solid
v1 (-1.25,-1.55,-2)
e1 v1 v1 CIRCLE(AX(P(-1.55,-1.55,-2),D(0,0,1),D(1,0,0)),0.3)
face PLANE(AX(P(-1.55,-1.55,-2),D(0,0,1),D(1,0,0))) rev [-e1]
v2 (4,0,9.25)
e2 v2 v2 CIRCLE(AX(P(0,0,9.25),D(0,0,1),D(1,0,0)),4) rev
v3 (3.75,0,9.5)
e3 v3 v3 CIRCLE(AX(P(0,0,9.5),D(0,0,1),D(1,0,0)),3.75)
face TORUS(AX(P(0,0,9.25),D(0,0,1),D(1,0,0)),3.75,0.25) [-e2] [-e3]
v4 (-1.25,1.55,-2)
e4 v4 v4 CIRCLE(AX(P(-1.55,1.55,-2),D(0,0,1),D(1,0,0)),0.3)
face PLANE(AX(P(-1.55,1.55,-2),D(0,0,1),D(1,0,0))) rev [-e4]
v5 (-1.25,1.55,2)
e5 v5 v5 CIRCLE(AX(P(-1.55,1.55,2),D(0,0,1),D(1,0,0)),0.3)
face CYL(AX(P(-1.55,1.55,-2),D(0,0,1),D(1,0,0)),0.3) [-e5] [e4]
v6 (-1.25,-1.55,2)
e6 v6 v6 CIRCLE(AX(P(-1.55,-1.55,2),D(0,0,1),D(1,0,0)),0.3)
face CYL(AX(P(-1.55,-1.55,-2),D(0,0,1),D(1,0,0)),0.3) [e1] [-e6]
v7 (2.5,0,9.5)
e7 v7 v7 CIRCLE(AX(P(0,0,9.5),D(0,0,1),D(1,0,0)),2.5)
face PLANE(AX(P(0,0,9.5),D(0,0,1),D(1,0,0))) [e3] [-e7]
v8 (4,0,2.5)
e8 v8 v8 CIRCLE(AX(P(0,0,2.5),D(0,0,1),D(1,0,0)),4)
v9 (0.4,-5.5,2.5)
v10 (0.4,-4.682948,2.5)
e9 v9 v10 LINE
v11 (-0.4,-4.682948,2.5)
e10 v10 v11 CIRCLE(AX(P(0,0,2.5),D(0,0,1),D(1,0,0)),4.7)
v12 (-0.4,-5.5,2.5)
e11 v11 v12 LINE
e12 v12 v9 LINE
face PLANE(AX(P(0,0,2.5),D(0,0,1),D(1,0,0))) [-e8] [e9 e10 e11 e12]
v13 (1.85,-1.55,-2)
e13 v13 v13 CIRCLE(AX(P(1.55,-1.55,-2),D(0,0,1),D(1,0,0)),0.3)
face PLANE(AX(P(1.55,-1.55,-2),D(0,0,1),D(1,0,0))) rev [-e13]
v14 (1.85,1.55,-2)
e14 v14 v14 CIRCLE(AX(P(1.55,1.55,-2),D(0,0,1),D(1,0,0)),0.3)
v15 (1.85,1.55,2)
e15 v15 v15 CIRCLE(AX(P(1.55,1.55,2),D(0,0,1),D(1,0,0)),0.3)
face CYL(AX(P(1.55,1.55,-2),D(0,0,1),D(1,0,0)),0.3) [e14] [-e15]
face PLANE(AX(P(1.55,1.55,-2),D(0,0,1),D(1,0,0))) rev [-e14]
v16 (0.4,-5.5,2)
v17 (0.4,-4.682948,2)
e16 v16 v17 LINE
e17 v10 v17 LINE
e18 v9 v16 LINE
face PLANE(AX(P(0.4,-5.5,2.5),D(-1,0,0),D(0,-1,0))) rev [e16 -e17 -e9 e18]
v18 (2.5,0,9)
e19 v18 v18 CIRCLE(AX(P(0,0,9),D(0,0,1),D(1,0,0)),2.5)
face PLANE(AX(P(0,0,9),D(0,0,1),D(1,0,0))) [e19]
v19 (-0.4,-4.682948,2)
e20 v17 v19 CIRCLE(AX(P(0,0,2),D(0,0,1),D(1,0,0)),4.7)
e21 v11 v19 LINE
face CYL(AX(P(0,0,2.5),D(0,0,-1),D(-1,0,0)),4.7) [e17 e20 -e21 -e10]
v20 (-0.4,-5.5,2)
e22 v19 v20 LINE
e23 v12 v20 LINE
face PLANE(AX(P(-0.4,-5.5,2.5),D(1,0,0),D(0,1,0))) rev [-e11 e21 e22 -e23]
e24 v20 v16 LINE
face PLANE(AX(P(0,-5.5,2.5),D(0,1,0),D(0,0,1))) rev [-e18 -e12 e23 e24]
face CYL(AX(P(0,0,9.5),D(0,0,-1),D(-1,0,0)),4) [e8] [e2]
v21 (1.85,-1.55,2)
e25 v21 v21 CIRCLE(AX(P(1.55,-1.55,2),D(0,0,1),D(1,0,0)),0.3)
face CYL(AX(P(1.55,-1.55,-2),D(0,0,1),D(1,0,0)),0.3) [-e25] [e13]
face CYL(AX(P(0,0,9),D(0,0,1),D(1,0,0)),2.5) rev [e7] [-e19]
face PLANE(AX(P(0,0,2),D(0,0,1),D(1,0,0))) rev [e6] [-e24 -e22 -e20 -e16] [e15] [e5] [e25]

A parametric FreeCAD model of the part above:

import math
import FreeCAD as App
import Part
import Sketcher


def edges_at(feature, points):
    """Names of the edges that pass closest to the given points."""
    edges = feature.Shape.Edges
    near = lambda p: min(range(len(edges)), key=lambda i: edges[i].distToShape(Part.Vertex(*p))[0])
    return sorted({f"Edge{near(p) + 1}" for p in points})

doc = App.newDocument("Part")
body = doc.addObject("PartDesign::Body", "Body")

sketch1 = body.newObject("Sketcher::SketchObject", "Sketch")
sketch1.AttachmentSupport = (doc.getObject("XY_Plane"), [""])
sketch1.MapMode = "FlatFace"
sketch1.addGeometry(Part.Circle(App.Vector(-1.55, 1.55, 0), App.Vector(0, 0, 1), 0.3), False)
sketch1.addConstraint([
    Sketcher.Constraint("Diameter", 0, 0.6),
    Sketcher.Constraint("DistanceX", 0, 3, -1, 1, 1.55),
    Sketcher.Constraint("DistanceY", -1, 1, 0, 3, 1.55),
])
pad1 = body.newObject("PartDesign::Pad", "Pad")
pad1.Profile = sketch1
pad1.Type = "TwoLengths"
pad1.Length = 2
pad1.Length2 = 2
body2 = doc.addObject("PartDesign::Body", "Body001")

sketch2 = body2.newObject("Sketcher::SketchObject", "Sketch001")
sketch2.AttachmentSupport = (doc.getObject("XY_Plane001"), [""])
sketch2.MapMode = "FlatFace"
sketch2.addGeometry(Part.Circle(App.Vector(-1.55, -1.55, 0), App.Vector(0, 0, 1), 0.3), False)
sketch2.addConstraint([
    Sketcher.Constraint("Diameter", 0, 0.6),
    Sketcher.Constraint("DistanceX", 0, 3, -1, 1, 1.55),
    Sketcher.Constraint("DistanceY", 0, 3, -1, 1, 1.55),
])
pad2 = body2.newObject("PartDesign::Pad", "Pad001")
pad2.Profile = sketch2
pad2.Type = "TwoLengths"
pad2.Length = 2
pad2.Length2 = 2
body3 = doc.addObject("PartDesign::Body", "Body002")

sketch3 = body3.newObject("Sketcher::SketchObject", "Sketch002")
sketch3.AttachmentSupport = (doc.getObject("XY_Plane002"), [""])
sketch3.MapMode = "FlatFace"
sketch3.addGeometry(Part.Circle(App.Vector(1.55, 1.55, 0), App.Vector(0, 0, 1), 0.3), False)
sketch3.addConstraint([
    Sketcher.Constraint("Diameter", 0, 0.6),
    Sketcher.Constraint("DistanceX", -1, 1, 0, 3, 1.55),
    Sketcher.Constraint("DistanceY", -1, 1, 0, 3, 1.55),
])
pad3 = body3.newObject("PartDesign::Pad", "Pad002")
pad3.Profile = sketch3
pad3.Type = "TwoLengths"
pad3.Length = 2
pad3.Length2 = 2
body4 = doc.addObject("PartDesign::Body", "Body003")

sketch4 = body4.newObject("Sketcher::SketchObject", "Sketch003")
sketch4.AttachmentSupport = (doc.getObject("XY_Plane003"), [""])
sketch4.MapMode = "FlatFace"
sketch4.addGeometry(Part.Circle(App.Vector(1.55, -1.55, 0), App.Vector(0, 0, 1), 0.3), False)
sketch4.addConstraint([
    Sketcher.Constraint("Diameter", 0, 0.6),
    Sketcher.Constraint("DistanceX", -1, 1, 0, 3, 1.55),
    Sketcher.Constraint("DistanceY", 0, 3, -1, 1, 1.55),
])
pad4 = body4.newObject("PartDesign::Pad", "Pad003")
pad4.Profile = sketch4
pad4.Type = "TwoLengths"
pad4.Length = 2
pad4.Length2 = 2
body.AllowCompound = True
doc.recompute()

boolean = body.newObject("PartDesign::Boolean", "Boolean")
boolean.Type = "Fuse"
boolean.addObjects([body2])
doc.recompute()

boolean2 = body.newObject("PartDesign::Boolean", "Boolean001")
boolean2.Type = "Fuse"
boolean2.addObjects([body3])
doc.recompute()

boolean3 = body.newObject("PartDesign::Boolean", "Boolean002")
boolean3.Type = "Fuse"
boolean3.addObjects([body4])

sketch5 = body.newObject("Sketcher::SketchObject", "Sketch004")
sketch5.AttachmentSupport = (doc.getObject("XY_Plane"), [""])
sketch5.MapMode = "FlatFace"
sketch5.AttachmentOffset = App.Placement(App.Vector(0, 0, 2), App.Rotation())
sketch5.addGeometry([
    Part.LineSegment(App.Vector(0.4, -5.5, 0), App.Vector(0.4, -4.7, 0)),
    Part.ArcOfCircle(Part.Circle(App.Vector(0, 0, 0), App.Vector(0, 0, 1), 4.7), math.radians(-85), math.radians(265)),
    Part.LineSegment(App.Vector(-0.4, -4.7, 0), App.Vector(-0.4, -5.5, 0)),
    Part.LineSegment(App.Vector(-0.4, -5.5, 0), App.Vector(0.4, -5.5, 0)),
], False)
sketch5.addConstraint([
    Sketcher.Constraint("Coincident", 0, 2, 1, 1),
    Sketcher.Constraint("Coincident", 1, 2, 2, 1),
    Sketcher.Constraint("Coincident", 2, 2, 3, 1),
    Sketcher.Constraint("Coincident", 3, 2, 0, 1),
    Sketcher.Constraint("Vertical", 0),
    Sketcher.Constraint("Vertical", 2),
    Sketcher.Constraint("Horizontal", 3),
    Sketcher.Constraint("Coincident", 1, 3, -1, 1),
    Sketcher.Constraint("Horizontal", 0, 2, 1, 2),
    Sketcher.Constraint("Radius", 1, 4.7),
    Sketcher.Constraint("DistanceX", 3, 1, 3, 2, 0.8),
    Sketcher.Constraint("DistanceY", 2, 2, -1, 1, 5.5),
])
pad5 = body.newObject("PartDesign::Pad", "Pad004")
pad5.Profile = sketch5
pad5.Length = 0.5

sketch6 = body.newObject("Sketcher::SketchObject", "Sketch005")
sketch6.AttachmentSupport = (doc.getObject("XY_Plane"), [""])
sketch6.MapMode = "FlatFace"
sketch6.AttachmentOffset = App.Placement(App.Vector(0, 0, 2.5), App.Rotation())
sketch6.addGeometry(Part.Circle(App.Vector(0, 0, 0), App.Vector(0, 0, 1), 4), False)
sketch6.addConstraint([
    Sketcher.Constraint("Coincident", 0, 3, -1, 1),
    Sketcher.Constraint("Diameter", 0, 8.0),
])
pad6 = body.newObject("PartDesign::Pad", "Pad005")
pad6.Profile = sketch6
pad6.Length = 7
doc.recompute()

fillet = body.newObject("PartDesign::Fillet", "Fillet")
fillet.Base = (pad6, edges_at(pad6, [(-4, 0, 9.5)]))
fillet.Radius = 0.25

sketch7 = body.newObject("Sketcher::SketchObject", "Sketch006")
sketch7.AttachmentSupport = (doc.getObject("XY_Plane"), [""])
sketch7.MapMode = "FlatFace"
sketch7.AttachmentOffset = App.Placement(App.Vector(0, 0, 9.5), App.Rotation())
sketch7.addGeometry(Part.Circle(App.Vector(0, 0, 0), App.Vector(0, 0, 1), 2.5), False)
sketch7.addConstraint([
    Sketcher.Constraint("Coincident", 0, 3, -1, 1),
    Sketcher.Constraint("Diameter", 0, 5.0),
])
pocket1 = body.newObject("PartDesign::Pocket", "Pocket")
pocket1.Profile = sketch7
pocket1.Length = 0.5

doc.recompute()
